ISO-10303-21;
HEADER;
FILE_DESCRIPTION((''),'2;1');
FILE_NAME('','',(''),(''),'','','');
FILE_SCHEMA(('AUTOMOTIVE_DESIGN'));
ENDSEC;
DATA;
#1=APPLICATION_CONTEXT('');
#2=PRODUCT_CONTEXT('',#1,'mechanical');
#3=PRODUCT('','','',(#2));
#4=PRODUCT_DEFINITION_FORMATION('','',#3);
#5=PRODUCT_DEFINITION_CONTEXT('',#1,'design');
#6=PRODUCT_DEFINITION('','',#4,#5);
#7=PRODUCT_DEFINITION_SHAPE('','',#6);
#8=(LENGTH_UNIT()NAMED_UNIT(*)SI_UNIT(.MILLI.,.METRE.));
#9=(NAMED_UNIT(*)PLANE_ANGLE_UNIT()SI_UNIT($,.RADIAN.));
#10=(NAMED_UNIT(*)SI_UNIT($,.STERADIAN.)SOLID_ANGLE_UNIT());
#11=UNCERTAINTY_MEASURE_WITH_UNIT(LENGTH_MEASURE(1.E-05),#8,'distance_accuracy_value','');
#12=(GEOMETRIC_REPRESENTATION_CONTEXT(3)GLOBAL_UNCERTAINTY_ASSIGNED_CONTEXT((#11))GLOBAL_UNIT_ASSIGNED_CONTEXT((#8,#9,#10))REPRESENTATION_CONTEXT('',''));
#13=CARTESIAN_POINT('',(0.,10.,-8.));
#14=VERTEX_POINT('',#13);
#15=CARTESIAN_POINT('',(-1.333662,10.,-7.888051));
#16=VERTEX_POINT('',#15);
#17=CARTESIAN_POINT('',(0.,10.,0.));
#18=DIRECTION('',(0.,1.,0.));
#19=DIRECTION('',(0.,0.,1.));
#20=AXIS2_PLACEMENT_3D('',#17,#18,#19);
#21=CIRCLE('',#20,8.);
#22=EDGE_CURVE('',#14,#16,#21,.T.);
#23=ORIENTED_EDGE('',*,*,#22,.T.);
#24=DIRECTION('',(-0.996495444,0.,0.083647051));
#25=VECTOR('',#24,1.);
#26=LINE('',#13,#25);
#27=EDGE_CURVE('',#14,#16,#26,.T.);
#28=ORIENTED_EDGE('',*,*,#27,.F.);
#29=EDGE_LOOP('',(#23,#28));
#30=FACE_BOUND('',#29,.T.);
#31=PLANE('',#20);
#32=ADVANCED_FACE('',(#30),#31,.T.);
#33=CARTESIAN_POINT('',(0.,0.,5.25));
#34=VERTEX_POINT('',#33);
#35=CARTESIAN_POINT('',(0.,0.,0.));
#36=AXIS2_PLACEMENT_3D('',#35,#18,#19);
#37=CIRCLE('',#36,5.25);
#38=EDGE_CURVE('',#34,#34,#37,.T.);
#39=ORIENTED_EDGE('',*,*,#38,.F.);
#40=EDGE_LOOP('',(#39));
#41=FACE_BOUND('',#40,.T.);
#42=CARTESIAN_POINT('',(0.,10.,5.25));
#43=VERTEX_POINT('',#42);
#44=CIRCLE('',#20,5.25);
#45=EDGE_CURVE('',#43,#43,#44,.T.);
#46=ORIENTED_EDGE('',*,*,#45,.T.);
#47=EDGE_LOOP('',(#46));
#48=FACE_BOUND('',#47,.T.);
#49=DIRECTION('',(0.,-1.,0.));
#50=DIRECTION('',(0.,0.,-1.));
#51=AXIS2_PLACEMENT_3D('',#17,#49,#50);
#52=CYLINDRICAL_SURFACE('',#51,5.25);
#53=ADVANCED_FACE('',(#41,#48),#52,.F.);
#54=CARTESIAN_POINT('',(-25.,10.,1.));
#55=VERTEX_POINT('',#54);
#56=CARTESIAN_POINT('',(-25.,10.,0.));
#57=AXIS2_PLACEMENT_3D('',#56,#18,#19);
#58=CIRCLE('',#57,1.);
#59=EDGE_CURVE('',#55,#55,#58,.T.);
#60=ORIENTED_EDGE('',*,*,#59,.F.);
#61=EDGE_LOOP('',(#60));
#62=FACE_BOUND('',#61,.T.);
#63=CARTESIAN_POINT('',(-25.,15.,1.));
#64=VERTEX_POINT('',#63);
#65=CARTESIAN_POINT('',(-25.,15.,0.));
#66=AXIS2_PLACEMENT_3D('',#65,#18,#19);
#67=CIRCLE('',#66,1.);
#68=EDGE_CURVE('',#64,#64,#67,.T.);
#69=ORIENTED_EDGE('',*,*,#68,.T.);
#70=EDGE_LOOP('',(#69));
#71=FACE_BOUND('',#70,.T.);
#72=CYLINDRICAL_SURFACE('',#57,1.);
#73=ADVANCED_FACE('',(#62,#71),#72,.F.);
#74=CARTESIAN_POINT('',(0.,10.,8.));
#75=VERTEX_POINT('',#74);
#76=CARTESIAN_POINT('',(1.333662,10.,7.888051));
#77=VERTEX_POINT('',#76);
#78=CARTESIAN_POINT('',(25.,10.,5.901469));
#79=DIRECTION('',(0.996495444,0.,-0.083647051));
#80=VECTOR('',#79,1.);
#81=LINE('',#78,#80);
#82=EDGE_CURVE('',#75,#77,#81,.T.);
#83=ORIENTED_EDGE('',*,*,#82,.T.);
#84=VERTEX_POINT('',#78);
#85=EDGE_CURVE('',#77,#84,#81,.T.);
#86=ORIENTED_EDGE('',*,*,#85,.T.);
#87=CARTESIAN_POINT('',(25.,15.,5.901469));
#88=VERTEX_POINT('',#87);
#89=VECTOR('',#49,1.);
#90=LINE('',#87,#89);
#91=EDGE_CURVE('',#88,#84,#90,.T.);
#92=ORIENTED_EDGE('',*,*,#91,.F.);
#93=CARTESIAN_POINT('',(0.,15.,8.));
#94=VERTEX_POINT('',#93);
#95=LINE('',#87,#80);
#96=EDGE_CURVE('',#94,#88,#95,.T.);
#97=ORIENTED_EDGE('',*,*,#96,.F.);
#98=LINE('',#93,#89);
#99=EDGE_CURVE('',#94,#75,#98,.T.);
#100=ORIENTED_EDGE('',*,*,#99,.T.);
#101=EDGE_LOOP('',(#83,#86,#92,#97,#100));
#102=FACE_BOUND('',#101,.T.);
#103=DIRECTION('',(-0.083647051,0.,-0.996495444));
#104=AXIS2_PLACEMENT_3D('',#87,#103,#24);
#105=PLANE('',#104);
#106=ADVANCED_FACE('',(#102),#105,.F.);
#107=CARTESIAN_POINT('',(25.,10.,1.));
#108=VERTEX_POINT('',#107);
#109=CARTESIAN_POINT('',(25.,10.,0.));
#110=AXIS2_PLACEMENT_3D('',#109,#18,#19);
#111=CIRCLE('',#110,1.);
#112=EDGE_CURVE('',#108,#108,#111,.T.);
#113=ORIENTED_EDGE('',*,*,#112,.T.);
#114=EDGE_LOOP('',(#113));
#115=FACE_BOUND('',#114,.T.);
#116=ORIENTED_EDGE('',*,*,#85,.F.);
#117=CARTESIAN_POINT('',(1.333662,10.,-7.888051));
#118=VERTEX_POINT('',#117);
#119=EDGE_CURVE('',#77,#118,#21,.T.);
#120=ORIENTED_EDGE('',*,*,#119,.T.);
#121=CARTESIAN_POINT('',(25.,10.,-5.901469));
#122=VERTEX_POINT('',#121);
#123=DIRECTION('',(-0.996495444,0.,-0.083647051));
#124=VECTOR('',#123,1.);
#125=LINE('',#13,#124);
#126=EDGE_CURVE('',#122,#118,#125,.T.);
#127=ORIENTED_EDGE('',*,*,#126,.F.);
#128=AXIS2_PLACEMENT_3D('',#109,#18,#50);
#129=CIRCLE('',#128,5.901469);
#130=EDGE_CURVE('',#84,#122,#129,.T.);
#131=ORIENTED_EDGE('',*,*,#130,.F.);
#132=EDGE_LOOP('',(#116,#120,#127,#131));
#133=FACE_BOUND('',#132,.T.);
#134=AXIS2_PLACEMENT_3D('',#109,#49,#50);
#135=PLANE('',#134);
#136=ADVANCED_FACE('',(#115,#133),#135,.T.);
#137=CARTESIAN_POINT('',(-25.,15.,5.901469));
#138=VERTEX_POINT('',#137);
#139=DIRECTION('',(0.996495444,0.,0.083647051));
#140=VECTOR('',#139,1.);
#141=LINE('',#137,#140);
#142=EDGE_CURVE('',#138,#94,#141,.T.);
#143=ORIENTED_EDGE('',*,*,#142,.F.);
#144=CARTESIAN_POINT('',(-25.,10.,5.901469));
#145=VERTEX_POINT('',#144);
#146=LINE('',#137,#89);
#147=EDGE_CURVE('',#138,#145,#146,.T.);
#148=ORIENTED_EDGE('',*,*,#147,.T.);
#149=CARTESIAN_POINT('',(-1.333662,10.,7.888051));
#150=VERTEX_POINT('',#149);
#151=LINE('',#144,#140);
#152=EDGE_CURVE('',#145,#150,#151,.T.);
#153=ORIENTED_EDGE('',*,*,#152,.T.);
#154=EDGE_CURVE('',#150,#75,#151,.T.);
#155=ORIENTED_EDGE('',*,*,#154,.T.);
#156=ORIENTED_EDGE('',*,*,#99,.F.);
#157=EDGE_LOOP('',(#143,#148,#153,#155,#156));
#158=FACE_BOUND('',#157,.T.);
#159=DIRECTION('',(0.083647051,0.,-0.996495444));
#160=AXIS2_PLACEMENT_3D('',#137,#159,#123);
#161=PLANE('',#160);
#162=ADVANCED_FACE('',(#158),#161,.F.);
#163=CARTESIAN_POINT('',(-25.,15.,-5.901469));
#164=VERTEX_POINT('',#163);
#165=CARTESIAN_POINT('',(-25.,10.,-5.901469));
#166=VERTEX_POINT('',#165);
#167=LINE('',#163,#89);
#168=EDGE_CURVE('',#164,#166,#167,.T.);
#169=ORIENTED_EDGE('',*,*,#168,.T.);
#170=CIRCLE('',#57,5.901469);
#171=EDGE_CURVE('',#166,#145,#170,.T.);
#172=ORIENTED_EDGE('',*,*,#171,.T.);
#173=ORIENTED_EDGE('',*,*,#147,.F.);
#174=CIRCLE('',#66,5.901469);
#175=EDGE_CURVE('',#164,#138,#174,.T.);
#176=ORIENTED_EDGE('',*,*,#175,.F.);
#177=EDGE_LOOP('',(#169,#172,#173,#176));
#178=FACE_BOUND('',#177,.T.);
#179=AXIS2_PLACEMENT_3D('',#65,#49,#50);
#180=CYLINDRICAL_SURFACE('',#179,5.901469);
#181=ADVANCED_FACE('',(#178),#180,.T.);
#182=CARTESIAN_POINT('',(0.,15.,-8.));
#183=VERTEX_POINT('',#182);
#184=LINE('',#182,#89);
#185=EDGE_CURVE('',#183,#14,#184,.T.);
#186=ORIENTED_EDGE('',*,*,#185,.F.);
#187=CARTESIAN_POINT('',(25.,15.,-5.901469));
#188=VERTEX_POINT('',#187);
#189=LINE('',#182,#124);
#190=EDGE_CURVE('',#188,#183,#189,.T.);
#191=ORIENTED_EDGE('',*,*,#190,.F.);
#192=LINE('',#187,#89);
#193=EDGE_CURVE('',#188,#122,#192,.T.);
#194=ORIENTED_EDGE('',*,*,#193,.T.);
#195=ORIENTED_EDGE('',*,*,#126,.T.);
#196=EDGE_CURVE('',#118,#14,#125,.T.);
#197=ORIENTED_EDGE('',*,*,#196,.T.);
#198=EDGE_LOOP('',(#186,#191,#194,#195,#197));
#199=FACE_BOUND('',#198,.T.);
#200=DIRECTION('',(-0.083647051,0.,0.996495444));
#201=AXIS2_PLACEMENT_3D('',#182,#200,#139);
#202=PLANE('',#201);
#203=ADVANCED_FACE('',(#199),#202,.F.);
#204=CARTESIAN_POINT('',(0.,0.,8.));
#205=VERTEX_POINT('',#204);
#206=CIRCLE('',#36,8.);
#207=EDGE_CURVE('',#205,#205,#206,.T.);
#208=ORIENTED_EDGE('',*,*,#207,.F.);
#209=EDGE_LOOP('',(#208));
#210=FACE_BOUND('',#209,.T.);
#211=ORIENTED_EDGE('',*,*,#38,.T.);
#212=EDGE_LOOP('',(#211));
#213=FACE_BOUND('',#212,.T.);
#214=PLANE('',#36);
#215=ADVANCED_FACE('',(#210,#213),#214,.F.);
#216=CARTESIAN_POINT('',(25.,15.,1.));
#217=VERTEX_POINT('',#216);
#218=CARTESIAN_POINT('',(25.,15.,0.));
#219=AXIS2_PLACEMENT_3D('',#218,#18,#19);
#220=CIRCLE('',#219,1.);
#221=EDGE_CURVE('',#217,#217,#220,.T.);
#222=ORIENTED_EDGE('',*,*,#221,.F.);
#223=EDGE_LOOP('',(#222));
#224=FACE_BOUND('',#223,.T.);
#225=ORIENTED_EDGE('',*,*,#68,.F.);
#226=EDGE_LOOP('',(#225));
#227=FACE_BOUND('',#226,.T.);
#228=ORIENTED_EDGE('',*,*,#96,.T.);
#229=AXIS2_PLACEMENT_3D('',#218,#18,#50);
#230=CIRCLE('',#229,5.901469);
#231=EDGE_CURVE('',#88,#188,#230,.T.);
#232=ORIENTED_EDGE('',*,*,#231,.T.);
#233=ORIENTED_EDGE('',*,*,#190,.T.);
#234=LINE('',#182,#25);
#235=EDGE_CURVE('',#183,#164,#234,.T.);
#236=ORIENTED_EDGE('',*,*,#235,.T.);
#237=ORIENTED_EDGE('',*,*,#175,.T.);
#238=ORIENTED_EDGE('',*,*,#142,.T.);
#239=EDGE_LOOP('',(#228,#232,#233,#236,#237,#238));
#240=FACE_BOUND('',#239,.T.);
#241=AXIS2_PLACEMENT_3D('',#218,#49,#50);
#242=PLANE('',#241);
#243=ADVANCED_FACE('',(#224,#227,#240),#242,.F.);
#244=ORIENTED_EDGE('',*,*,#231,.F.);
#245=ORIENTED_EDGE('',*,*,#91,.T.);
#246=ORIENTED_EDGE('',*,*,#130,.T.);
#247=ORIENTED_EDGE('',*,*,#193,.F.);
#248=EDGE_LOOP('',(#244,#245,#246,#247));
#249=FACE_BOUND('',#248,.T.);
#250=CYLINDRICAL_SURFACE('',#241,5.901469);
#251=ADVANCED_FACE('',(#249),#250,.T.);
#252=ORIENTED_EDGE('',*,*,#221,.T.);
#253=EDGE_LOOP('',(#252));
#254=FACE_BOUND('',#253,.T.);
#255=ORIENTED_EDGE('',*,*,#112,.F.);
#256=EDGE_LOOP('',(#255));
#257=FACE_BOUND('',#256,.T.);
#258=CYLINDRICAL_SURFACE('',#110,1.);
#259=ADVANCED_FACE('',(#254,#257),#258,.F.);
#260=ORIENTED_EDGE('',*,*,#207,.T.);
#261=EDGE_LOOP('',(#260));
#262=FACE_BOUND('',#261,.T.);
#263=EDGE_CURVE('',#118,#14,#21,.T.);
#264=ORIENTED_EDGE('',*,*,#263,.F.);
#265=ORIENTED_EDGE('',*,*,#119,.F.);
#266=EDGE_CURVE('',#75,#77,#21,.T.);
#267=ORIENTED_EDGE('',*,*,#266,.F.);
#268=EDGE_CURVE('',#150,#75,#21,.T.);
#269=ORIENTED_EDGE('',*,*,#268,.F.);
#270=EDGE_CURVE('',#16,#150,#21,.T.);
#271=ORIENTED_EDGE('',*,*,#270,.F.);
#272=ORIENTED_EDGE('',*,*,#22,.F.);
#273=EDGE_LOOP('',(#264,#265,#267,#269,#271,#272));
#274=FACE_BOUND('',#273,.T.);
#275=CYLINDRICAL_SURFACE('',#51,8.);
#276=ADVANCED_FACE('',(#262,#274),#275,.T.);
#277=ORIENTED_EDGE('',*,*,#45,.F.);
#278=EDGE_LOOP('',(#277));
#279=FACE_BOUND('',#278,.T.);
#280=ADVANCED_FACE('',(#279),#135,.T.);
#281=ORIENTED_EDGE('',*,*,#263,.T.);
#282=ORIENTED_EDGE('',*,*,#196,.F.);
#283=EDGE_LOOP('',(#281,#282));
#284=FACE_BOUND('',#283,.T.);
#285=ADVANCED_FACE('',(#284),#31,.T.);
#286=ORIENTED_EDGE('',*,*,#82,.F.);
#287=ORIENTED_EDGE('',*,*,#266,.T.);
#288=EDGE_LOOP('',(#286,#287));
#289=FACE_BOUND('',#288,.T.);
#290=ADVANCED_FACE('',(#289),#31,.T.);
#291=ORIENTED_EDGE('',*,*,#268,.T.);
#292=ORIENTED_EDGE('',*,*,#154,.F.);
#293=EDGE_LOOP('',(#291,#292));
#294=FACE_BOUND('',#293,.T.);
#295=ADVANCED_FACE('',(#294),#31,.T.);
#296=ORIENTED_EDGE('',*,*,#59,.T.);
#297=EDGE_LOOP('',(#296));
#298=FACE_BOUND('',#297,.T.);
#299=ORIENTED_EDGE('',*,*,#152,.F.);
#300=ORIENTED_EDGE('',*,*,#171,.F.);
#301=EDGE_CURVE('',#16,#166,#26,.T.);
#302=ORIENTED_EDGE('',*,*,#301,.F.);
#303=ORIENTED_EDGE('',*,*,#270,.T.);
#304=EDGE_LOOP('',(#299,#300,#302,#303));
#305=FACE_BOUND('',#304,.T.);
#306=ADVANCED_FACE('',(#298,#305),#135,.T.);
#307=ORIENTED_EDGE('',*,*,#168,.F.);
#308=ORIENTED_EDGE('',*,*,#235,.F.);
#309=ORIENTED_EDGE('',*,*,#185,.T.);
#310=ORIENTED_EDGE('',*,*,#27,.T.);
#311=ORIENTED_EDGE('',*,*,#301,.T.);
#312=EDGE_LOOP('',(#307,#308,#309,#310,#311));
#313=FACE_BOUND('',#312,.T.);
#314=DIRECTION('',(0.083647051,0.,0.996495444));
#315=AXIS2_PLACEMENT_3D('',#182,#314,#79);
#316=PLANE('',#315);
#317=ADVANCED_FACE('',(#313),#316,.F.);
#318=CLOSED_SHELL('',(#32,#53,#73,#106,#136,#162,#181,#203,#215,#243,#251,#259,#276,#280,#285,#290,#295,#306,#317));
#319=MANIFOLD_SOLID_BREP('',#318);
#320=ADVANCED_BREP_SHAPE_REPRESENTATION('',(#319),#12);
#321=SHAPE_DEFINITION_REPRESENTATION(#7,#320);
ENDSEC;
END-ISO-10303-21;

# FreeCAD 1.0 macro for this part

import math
import FreeCAD as App
import Part
import Sketcher
Q = App.Units.Quantity

doc = App.newDocument("Part")
body = doc.addObject("PartDesign::Body", "Body")

# Sketch on XZ plane
sketch1 = doc.addObject("Sketcher::SketchObject", "Sketch")
body.addObject(sketch1)
sketch1.AttachmentSupport = (doc.XZ_Plane, [""])
sketch1.MapMode = "FlatFace"
sketch1.addGeometry(Part.Circle(App.Vector(0, 0, 0), App.Vector(0, 0, 1), 8), False)
sketch1.addGeometry(Part.Circle(App.Vector(0, 0, 0), App.Vector(0, 0, 1), 5), False)
sketch1.addConstraint(Sketcher.Constraint("Coincident", 0, 3, -1, 1))
sketch1.addConstraint(Sketcher.Constraint("Coincident", 1, 3, -1, 1))
sketch1.addConstraint(Sketcher.Constraint("Diameter", 0, Q("16 mm")))
sketch1.addConstraint(Sketcher.Constraint("Diameter", 1, Q("10.5 mm")))
pad1 = doc.addObject("PartDesign::Pad", "Pad")
body.addObject(pad1)
pad1.Profile = sketch1
pad1.Length = 10
pad1.Reversed = True

# Sketch on XZ plane
sketch2 = doc.addObject("Sketcher::SketchObject", "Sketch001")
body.addObject(sketch2)
sketch2.AttachmentSupport = (doc.XZ_Plane, [""])
sketch2.MapMode = "FlatFace"
sketch2.AttachmentOffset = App.Placement(App.Vector(0, 0, -10), App.Rotation())
sketch2.addGeometry(Part.LineSegment(App.Vector(0, -8, 0), App.Vector(-25, -6, 0)), False)
sketch2.addGeometry(Part.ArcOfCircle(Part.Circle(App.Vector(-25, 0, 0), App.Vector(0, 0, 1), 6), math.radians(90), math.radians(270)), False)
sketch2.addGeometry(Part.LineSegment(App.Vector(-25, 6, 0), App.Vector(0, 8, 0)), False)
sketch2.addGeometry(Part.LineSegment(App.Vector(0, 8, 0), App.Vector(25, 6, 0)), False)
sketch2.addGeometry(Part.ArcOfCircle(Part.Circle(App.Vector(25, 0, 0), App.Vector(0, 0, 1), 6), math.radians(-90), math.radians(90)), False)
sketch2.addGeometry(Part.LineSegment(App.Vector(25, -6, 0), App.Vector(0, -8, 0)), False)
sketch2.addConstraint(Sketcher.Constraint("Coincident", 0, 2, 1, 2))
sketch2.addConstraint(Sketcher.Constraint("Coincident", 1, 1, 2, 1))
sketch2.addConstraint(Sketcher.Constraint("Coincident", 2, 2, 3, 1))
sketch2.addConstraint(Sketcher.Constraint("Coincident", 3, 2, 4, 2))
sketch2.addConstraint(Sketcher.Constraint("Coincident", 4, 1, 5, 1))
sketch2.addConstraint(Sketcher.Constraint("Coincident", 5, 2, 0, 1))
sketch2.addConstraint(Sketcher.Constraint("Equal", 1, 4))
sketch2.addConstraint(Sketcher.Constraint("Symmetric", 1, 3, 4, 3, -1, 1))
sketch2.addConstraint(Sketcher.Constraint("Symmetric", 2, 2, 5, 2, -1, 1))
sketch2.addConstraint(Sketcher.Constraint("Symmetric", 1, 1, 3, 2, -2))
sketch2.addConstraint(Sketcher.Constraint("PointOnObject", 2, 2, -2))
sketch2.addConstraint(Sketcher.Constraint("Parallel", 0, 3))
sketch2.addConstraint(Sketcher.Constraint("Parallel", 2, 5))
sketch2.addConstraint(Sketcher.Constraint("Vertical", 1, 3, 0, 2))
sketch2.addConstraint(Sketcher.Constraint("DistanceX", 1, 3, -1, 1, Q("25 mm")))
sketch2.addConstraint(Sketcher.Constraint("DistanceY", -1, 1, 2, 2, Q("8 mm")))
sketch2.addConstraint(Sketcher.Constraint("Radius", 1, Q("5.901469 mm")))
pad2 = doc.addObject("PartDesign::Pad", "Pad001")
body.addObject(pad2)
pad2.Profile = sketch2
pad2.Length = 5
pad2.Reversed = True

# Sketch on XZ plane
sketch3 = doc.addObject("Sketcher::SketchObject", "Sketch002")
body.addObject(sketch3)
sketch3.AttachmentSupport = (doc.XZ_Plane, [""])
sketch3.MapMode = "FlatFace"
sketch3.AttachmentOffset = App.Placement(App.Vector(0, 0, -15), App.Rotation())
sketch3.addGeometry(Part.Circle(App.Vector(-25, 0, 0), App.Vector(0, 0, 1), 1), False)
sketch3.addGeometry(Part.Circle(App.Vector(25, 0, 0), App.Vector(0, 0, 1), 1), False)
sketch3.addConstraint(Sketcher.Constraint("Equal", 0, 1))
sketch3.addConstraint(Sketcher.Constraint("Symmetric", 0, 3, 1, 3, -1, 1))
sketch3.addConstraint(Sketcher.Constraint("PointOnObject", 0, 3, -1))
sketch3.addConstraint(Sketcher.Constraint("Diameter", 0, Q("2 mm")))
sketch3.addConstraint(Sketcher.Constraint("DistanceX", 0, 3, -1, 1, Q("25 mm")))
pocket1 = doc.addObject("PartDesign::Pocket", "Pocket")
body.addObject(pocket1)
pocket1.Profile = sketch3
pocket1.Length = 5
pocket1.Reversed = True

doc.recompute()
